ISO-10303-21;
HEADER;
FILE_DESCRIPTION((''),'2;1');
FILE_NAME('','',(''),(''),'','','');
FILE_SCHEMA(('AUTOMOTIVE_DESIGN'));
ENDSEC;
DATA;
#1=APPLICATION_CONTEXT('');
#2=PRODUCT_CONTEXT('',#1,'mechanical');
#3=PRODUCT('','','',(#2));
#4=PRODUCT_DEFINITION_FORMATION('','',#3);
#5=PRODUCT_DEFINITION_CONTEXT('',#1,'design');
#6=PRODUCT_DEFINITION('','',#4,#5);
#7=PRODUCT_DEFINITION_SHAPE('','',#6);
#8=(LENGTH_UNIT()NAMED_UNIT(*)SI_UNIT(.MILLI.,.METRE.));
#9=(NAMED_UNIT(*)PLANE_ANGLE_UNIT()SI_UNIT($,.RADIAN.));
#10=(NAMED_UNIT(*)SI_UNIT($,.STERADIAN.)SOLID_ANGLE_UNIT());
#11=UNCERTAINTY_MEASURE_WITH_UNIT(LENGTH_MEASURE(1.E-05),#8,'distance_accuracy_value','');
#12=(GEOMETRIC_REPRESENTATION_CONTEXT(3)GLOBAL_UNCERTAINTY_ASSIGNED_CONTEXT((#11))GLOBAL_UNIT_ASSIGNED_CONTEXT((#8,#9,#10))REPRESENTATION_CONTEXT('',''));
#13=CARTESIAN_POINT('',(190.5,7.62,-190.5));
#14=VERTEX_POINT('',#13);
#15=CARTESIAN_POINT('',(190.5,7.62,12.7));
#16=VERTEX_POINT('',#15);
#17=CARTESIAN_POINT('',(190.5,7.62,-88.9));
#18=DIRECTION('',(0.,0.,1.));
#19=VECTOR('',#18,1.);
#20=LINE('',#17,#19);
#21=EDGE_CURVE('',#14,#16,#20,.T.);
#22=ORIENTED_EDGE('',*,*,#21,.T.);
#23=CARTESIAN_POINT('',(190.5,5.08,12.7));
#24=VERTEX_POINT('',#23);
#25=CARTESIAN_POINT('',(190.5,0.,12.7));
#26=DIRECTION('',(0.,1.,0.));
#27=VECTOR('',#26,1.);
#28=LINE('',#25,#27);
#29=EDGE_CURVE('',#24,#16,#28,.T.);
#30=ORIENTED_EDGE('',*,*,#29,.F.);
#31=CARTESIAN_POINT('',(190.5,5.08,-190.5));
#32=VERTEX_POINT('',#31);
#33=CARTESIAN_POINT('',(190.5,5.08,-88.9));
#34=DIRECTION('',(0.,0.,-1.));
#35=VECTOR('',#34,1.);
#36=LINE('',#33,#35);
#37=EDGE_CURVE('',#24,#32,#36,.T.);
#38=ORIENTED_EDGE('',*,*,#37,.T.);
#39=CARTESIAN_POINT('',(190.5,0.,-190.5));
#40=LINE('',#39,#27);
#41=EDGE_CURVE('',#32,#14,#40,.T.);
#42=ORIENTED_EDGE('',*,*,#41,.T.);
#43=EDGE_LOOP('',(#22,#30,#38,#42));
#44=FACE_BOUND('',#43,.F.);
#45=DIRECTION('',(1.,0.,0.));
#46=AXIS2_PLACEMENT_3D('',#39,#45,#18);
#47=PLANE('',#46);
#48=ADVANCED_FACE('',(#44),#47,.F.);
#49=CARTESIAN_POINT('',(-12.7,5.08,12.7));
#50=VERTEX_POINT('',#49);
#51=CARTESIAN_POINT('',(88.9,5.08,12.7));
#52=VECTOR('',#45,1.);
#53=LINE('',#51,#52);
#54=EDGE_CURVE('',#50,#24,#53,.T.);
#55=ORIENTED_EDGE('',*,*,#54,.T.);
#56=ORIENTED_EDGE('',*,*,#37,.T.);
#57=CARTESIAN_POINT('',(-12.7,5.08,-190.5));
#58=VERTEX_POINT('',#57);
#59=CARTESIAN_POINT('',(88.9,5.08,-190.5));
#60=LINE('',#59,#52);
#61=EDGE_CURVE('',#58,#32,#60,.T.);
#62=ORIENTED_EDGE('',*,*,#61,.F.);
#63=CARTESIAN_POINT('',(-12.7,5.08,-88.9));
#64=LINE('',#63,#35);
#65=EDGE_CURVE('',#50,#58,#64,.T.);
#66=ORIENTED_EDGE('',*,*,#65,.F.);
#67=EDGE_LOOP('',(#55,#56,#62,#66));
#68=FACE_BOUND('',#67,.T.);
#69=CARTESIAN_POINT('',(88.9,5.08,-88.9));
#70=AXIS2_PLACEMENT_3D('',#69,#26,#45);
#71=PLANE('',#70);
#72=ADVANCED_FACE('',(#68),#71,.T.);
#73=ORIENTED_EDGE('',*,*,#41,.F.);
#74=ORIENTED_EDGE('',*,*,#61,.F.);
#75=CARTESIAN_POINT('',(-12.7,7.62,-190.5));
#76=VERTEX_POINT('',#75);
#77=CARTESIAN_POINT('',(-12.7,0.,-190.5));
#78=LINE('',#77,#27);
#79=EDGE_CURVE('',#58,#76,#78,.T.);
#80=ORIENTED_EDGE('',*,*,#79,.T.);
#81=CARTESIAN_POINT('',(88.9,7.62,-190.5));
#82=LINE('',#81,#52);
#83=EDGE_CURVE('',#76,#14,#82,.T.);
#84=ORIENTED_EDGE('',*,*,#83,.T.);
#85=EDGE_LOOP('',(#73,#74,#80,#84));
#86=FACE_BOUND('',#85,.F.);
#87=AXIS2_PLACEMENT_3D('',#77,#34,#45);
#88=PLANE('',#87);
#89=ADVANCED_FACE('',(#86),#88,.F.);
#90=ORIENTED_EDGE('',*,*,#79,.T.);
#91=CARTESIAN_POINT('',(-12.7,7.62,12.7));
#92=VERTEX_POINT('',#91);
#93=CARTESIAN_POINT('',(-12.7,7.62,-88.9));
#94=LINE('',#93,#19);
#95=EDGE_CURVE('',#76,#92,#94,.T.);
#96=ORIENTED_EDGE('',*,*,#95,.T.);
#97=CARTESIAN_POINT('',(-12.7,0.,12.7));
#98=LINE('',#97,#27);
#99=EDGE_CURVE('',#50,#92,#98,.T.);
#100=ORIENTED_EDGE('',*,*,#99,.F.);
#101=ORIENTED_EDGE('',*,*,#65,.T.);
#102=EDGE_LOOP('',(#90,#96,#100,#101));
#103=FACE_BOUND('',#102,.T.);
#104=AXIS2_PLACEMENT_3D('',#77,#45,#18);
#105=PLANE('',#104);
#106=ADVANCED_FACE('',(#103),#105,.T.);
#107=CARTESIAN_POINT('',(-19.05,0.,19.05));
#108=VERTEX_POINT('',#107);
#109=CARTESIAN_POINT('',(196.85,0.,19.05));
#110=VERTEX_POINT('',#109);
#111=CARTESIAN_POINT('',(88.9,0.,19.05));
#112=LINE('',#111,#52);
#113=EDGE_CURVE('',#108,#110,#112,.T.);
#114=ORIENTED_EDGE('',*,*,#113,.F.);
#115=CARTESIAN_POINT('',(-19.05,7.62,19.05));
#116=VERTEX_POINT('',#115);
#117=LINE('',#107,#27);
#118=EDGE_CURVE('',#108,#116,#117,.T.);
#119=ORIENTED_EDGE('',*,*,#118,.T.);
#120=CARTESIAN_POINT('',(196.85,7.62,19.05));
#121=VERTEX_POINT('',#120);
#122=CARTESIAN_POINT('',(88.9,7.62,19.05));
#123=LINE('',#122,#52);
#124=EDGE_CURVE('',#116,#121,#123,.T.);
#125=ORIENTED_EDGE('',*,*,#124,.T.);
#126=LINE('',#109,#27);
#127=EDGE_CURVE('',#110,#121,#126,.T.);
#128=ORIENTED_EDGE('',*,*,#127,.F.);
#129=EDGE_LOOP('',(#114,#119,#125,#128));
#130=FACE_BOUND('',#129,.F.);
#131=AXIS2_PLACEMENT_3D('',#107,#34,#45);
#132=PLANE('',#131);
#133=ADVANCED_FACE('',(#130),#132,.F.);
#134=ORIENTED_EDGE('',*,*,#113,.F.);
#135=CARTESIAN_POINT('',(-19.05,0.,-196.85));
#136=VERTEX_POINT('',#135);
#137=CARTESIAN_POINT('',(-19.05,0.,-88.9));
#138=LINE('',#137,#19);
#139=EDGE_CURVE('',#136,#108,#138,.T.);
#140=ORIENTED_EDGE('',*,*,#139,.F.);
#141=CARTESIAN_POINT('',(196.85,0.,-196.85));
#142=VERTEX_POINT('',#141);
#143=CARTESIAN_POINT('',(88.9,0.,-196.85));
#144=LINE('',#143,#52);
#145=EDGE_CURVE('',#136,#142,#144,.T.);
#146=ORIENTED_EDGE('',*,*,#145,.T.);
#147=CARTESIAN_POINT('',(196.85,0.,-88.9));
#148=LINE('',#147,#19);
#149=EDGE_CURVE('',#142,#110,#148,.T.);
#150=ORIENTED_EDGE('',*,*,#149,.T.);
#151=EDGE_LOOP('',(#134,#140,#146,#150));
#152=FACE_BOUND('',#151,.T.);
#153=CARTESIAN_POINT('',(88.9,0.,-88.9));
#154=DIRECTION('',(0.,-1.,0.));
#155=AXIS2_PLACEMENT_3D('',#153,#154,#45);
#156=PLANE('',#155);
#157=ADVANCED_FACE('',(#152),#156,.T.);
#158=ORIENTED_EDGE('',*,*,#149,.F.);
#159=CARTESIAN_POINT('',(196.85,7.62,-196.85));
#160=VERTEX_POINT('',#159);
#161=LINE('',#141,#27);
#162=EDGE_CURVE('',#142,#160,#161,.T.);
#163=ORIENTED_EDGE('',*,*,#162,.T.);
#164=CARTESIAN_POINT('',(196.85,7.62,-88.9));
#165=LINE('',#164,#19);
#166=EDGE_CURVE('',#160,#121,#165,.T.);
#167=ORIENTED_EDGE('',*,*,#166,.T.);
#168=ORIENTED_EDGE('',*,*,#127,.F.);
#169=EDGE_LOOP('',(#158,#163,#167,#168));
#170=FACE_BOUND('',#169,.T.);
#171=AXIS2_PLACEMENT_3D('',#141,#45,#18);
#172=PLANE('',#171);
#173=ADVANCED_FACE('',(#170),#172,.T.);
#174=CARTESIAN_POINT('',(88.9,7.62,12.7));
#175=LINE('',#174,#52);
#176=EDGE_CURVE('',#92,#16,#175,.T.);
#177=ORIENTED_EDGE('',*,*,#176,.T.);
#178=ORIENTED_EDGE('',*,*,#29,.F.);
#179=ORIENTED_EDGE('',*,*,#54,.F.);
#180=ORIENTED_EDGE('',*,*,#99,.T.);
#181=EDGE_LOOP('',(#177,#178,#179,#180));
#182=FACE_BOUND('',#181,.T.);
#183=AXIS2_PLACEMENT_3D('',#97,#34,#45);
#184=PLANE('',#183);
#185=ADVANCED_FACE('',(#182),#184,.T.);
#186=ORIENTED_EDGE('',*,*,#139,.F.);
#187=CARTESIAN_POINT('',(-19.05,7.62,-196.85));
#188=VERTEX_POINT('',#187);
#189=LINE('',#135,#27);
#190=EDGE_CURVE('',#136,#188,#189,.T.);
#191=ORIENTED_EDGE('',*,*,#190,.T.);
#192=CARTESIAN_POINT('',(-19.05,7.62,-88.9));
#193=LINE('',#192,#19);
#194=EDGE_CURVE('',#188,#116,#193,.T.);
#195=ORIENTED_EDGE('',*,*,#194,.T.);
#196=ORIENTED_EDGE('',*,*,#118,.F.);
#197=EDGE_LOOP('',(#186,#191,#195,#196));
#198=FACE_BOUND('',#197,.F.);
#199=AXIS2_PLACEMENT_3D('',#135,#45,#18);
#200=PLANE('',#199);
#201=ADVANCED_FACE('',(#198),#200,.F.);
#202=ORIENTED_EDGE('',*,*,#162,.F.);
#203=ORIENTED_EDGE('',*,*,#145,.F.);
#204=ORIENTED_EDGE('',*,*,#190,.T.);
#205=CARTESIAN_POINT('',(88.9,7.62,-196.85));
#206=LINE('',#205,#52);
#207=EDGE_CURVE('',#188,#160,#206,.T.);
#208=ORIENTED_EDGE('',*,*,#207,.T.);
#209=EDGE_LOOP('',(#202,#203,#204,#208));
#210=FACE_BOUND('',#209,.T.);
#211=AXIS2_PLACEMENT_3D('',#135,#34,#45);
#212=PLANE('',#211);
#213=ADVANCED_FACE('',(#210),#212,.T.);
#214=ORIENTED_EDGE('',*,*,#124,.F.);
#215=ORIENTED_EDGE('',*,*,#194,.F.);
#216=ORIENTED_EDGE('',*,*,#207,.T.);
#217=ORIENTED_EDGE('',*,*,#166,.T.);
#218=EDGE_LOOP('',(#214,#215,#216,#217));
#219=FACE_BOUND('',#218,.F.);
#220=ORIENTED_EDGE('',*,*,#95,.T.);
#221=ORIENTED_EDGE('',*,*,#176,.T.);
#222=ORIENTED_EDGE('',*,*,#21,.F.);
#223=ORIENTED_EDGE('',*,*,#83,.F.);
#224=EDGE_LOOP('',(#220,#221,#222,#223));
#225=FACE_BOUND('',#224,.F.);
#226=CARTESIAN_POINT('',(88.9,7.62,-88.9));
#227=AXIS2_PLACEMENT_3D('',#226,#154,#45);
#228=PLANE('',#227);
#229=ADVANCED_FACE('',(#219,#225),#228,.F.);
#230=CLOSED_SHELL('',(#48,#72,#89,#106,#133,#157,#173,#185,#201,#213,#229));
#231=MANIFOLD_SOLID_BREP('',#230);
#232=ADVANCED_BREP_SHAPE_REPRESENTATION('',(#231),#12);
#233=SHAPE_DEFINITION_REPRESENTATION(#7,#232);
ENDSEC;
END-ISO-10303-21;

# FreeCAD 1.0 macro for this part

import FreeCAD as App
import Part
import Sketcher
Q = App.Units.Quantity


def add_polygon(sketch, points):
    """Adds a closed chain of lines whose ends are joined by coincident constraints."""
    first, n = sketch.GeometryCount, len(points)
    for a, b in zip(points, points[1:] + points[:1]):
        sketch.addGeometry(Part.LineSegment(App.Vector(*a, 0), App.Vector(*b, 0)), False)
    for i in range(n):
        sketch.addConstraint(Sketcher.Constraint("Coincident", first + i, 2, first + (i + 1) % n, 1))

doc = App.newDocument("Part")
body = doc.addObject("PartDesign::Body", "Body")

# Sketch on XZ plane
sketch1 = body.newObject("Sketcher::SketchObject", "Sketch")
sketch1.AttachmentSupport = (doc.getObject("XZ_Plane"), [""])
sketch1.MapMode = "FlatFace"
add_polygon(sketch1, [(-13, -190), (-13, 13), (190, 13), (190, -190)])  # lines 0-3
sketch1.addConstraint([
    Sketcher.Constraint("Vertical", 0),
    Sketcher.Constraint("Horizontal", 1),
    Sketcher.Constraint("Vertical", 2),
    Sketcher.Constraint("Horizontal", 3),
    Sketcher.Constraint("Equal", 3, 0),
    Sketcher.Constraint("DistanceX", 1, 1, 1, 2, Q("8 in")),
    Sketcher.Constraint("DistanceX", 0, 2, -1, 1, Q("0.5 in")),
    Sketcher.Constraint("DistanceY", -1, 1, 0, 2, Q("0.5 in")),
])
pad1 = body.newObject("PartDesign::Pad", "Pad")
pad1.Profile = sketch1
pad1.Length = Q("0.2 in")
pad1.Reversed = True

# Sketch on XZ plane
sketch2 = body.newObject("Sketcher::SketchObject", "Sketch001")
sketch2.AttachmentSupport = (doc.getObject("XZ_Plane"), [""])
sketch2.MapMode = "FlatFace"
add_polygon(sketch2, [(-19, 19), (-19, -197), (197, -197), (197, 19)])  # lines 0-3
add_polygon(sketch2, [(190, -190), (-13, -190), (-13, 13), (190, 13)])  # lines 4-7
sketch2.addConstraint([
    Sketcher.Constraint("Vertical", 0),
    Sketcher.Constraint("Horizontal", 1),
    Sketcher.Constraint("Vertical", 2),
    Sketcher.Constraint("Horizontal", 3),
    Sketcher.Constraint("Horizontal", 4),
    Sketcher.Constraint("Vertical", 5),
    Sketcher.Constraint("Horizontal", 6),
    Sketcher.Constraint("Vertical", 7),
    Sketcher.Constraint("Equal", 3, 0),
    Sketcher.Constraint("Equal", 6, 5),
    Sketcher.Constraint("DistanceX", 4, 2, 4, 1, Q("8 in")),
    Sketcher.Constraint("DistanceX", 1, 1, 1, 2, Q("8.5 in")),
    Sketcher.Constraint("DistanceX", 4, 2, -1, 1, Q("0.5 in")),
    Sketcher.Constraint("DistanceY", 4, 2, -1, 1, Q("7.5 in")),
    Sketcher.Constraint("DistanceX", 0, 2, -1, 1, Q("0.75 in")),
    Sketcher.Constraint("DistanceY", 0, 2, -1, 1, Q("7.75 in")),
])
pad2 = body.newObject("PartDesign::Pad", "Pad001")
pad2.Profile = sketch2
pad2.Length = Q("0.3 in")
pad2.Reversed = True

doc.recompute()
